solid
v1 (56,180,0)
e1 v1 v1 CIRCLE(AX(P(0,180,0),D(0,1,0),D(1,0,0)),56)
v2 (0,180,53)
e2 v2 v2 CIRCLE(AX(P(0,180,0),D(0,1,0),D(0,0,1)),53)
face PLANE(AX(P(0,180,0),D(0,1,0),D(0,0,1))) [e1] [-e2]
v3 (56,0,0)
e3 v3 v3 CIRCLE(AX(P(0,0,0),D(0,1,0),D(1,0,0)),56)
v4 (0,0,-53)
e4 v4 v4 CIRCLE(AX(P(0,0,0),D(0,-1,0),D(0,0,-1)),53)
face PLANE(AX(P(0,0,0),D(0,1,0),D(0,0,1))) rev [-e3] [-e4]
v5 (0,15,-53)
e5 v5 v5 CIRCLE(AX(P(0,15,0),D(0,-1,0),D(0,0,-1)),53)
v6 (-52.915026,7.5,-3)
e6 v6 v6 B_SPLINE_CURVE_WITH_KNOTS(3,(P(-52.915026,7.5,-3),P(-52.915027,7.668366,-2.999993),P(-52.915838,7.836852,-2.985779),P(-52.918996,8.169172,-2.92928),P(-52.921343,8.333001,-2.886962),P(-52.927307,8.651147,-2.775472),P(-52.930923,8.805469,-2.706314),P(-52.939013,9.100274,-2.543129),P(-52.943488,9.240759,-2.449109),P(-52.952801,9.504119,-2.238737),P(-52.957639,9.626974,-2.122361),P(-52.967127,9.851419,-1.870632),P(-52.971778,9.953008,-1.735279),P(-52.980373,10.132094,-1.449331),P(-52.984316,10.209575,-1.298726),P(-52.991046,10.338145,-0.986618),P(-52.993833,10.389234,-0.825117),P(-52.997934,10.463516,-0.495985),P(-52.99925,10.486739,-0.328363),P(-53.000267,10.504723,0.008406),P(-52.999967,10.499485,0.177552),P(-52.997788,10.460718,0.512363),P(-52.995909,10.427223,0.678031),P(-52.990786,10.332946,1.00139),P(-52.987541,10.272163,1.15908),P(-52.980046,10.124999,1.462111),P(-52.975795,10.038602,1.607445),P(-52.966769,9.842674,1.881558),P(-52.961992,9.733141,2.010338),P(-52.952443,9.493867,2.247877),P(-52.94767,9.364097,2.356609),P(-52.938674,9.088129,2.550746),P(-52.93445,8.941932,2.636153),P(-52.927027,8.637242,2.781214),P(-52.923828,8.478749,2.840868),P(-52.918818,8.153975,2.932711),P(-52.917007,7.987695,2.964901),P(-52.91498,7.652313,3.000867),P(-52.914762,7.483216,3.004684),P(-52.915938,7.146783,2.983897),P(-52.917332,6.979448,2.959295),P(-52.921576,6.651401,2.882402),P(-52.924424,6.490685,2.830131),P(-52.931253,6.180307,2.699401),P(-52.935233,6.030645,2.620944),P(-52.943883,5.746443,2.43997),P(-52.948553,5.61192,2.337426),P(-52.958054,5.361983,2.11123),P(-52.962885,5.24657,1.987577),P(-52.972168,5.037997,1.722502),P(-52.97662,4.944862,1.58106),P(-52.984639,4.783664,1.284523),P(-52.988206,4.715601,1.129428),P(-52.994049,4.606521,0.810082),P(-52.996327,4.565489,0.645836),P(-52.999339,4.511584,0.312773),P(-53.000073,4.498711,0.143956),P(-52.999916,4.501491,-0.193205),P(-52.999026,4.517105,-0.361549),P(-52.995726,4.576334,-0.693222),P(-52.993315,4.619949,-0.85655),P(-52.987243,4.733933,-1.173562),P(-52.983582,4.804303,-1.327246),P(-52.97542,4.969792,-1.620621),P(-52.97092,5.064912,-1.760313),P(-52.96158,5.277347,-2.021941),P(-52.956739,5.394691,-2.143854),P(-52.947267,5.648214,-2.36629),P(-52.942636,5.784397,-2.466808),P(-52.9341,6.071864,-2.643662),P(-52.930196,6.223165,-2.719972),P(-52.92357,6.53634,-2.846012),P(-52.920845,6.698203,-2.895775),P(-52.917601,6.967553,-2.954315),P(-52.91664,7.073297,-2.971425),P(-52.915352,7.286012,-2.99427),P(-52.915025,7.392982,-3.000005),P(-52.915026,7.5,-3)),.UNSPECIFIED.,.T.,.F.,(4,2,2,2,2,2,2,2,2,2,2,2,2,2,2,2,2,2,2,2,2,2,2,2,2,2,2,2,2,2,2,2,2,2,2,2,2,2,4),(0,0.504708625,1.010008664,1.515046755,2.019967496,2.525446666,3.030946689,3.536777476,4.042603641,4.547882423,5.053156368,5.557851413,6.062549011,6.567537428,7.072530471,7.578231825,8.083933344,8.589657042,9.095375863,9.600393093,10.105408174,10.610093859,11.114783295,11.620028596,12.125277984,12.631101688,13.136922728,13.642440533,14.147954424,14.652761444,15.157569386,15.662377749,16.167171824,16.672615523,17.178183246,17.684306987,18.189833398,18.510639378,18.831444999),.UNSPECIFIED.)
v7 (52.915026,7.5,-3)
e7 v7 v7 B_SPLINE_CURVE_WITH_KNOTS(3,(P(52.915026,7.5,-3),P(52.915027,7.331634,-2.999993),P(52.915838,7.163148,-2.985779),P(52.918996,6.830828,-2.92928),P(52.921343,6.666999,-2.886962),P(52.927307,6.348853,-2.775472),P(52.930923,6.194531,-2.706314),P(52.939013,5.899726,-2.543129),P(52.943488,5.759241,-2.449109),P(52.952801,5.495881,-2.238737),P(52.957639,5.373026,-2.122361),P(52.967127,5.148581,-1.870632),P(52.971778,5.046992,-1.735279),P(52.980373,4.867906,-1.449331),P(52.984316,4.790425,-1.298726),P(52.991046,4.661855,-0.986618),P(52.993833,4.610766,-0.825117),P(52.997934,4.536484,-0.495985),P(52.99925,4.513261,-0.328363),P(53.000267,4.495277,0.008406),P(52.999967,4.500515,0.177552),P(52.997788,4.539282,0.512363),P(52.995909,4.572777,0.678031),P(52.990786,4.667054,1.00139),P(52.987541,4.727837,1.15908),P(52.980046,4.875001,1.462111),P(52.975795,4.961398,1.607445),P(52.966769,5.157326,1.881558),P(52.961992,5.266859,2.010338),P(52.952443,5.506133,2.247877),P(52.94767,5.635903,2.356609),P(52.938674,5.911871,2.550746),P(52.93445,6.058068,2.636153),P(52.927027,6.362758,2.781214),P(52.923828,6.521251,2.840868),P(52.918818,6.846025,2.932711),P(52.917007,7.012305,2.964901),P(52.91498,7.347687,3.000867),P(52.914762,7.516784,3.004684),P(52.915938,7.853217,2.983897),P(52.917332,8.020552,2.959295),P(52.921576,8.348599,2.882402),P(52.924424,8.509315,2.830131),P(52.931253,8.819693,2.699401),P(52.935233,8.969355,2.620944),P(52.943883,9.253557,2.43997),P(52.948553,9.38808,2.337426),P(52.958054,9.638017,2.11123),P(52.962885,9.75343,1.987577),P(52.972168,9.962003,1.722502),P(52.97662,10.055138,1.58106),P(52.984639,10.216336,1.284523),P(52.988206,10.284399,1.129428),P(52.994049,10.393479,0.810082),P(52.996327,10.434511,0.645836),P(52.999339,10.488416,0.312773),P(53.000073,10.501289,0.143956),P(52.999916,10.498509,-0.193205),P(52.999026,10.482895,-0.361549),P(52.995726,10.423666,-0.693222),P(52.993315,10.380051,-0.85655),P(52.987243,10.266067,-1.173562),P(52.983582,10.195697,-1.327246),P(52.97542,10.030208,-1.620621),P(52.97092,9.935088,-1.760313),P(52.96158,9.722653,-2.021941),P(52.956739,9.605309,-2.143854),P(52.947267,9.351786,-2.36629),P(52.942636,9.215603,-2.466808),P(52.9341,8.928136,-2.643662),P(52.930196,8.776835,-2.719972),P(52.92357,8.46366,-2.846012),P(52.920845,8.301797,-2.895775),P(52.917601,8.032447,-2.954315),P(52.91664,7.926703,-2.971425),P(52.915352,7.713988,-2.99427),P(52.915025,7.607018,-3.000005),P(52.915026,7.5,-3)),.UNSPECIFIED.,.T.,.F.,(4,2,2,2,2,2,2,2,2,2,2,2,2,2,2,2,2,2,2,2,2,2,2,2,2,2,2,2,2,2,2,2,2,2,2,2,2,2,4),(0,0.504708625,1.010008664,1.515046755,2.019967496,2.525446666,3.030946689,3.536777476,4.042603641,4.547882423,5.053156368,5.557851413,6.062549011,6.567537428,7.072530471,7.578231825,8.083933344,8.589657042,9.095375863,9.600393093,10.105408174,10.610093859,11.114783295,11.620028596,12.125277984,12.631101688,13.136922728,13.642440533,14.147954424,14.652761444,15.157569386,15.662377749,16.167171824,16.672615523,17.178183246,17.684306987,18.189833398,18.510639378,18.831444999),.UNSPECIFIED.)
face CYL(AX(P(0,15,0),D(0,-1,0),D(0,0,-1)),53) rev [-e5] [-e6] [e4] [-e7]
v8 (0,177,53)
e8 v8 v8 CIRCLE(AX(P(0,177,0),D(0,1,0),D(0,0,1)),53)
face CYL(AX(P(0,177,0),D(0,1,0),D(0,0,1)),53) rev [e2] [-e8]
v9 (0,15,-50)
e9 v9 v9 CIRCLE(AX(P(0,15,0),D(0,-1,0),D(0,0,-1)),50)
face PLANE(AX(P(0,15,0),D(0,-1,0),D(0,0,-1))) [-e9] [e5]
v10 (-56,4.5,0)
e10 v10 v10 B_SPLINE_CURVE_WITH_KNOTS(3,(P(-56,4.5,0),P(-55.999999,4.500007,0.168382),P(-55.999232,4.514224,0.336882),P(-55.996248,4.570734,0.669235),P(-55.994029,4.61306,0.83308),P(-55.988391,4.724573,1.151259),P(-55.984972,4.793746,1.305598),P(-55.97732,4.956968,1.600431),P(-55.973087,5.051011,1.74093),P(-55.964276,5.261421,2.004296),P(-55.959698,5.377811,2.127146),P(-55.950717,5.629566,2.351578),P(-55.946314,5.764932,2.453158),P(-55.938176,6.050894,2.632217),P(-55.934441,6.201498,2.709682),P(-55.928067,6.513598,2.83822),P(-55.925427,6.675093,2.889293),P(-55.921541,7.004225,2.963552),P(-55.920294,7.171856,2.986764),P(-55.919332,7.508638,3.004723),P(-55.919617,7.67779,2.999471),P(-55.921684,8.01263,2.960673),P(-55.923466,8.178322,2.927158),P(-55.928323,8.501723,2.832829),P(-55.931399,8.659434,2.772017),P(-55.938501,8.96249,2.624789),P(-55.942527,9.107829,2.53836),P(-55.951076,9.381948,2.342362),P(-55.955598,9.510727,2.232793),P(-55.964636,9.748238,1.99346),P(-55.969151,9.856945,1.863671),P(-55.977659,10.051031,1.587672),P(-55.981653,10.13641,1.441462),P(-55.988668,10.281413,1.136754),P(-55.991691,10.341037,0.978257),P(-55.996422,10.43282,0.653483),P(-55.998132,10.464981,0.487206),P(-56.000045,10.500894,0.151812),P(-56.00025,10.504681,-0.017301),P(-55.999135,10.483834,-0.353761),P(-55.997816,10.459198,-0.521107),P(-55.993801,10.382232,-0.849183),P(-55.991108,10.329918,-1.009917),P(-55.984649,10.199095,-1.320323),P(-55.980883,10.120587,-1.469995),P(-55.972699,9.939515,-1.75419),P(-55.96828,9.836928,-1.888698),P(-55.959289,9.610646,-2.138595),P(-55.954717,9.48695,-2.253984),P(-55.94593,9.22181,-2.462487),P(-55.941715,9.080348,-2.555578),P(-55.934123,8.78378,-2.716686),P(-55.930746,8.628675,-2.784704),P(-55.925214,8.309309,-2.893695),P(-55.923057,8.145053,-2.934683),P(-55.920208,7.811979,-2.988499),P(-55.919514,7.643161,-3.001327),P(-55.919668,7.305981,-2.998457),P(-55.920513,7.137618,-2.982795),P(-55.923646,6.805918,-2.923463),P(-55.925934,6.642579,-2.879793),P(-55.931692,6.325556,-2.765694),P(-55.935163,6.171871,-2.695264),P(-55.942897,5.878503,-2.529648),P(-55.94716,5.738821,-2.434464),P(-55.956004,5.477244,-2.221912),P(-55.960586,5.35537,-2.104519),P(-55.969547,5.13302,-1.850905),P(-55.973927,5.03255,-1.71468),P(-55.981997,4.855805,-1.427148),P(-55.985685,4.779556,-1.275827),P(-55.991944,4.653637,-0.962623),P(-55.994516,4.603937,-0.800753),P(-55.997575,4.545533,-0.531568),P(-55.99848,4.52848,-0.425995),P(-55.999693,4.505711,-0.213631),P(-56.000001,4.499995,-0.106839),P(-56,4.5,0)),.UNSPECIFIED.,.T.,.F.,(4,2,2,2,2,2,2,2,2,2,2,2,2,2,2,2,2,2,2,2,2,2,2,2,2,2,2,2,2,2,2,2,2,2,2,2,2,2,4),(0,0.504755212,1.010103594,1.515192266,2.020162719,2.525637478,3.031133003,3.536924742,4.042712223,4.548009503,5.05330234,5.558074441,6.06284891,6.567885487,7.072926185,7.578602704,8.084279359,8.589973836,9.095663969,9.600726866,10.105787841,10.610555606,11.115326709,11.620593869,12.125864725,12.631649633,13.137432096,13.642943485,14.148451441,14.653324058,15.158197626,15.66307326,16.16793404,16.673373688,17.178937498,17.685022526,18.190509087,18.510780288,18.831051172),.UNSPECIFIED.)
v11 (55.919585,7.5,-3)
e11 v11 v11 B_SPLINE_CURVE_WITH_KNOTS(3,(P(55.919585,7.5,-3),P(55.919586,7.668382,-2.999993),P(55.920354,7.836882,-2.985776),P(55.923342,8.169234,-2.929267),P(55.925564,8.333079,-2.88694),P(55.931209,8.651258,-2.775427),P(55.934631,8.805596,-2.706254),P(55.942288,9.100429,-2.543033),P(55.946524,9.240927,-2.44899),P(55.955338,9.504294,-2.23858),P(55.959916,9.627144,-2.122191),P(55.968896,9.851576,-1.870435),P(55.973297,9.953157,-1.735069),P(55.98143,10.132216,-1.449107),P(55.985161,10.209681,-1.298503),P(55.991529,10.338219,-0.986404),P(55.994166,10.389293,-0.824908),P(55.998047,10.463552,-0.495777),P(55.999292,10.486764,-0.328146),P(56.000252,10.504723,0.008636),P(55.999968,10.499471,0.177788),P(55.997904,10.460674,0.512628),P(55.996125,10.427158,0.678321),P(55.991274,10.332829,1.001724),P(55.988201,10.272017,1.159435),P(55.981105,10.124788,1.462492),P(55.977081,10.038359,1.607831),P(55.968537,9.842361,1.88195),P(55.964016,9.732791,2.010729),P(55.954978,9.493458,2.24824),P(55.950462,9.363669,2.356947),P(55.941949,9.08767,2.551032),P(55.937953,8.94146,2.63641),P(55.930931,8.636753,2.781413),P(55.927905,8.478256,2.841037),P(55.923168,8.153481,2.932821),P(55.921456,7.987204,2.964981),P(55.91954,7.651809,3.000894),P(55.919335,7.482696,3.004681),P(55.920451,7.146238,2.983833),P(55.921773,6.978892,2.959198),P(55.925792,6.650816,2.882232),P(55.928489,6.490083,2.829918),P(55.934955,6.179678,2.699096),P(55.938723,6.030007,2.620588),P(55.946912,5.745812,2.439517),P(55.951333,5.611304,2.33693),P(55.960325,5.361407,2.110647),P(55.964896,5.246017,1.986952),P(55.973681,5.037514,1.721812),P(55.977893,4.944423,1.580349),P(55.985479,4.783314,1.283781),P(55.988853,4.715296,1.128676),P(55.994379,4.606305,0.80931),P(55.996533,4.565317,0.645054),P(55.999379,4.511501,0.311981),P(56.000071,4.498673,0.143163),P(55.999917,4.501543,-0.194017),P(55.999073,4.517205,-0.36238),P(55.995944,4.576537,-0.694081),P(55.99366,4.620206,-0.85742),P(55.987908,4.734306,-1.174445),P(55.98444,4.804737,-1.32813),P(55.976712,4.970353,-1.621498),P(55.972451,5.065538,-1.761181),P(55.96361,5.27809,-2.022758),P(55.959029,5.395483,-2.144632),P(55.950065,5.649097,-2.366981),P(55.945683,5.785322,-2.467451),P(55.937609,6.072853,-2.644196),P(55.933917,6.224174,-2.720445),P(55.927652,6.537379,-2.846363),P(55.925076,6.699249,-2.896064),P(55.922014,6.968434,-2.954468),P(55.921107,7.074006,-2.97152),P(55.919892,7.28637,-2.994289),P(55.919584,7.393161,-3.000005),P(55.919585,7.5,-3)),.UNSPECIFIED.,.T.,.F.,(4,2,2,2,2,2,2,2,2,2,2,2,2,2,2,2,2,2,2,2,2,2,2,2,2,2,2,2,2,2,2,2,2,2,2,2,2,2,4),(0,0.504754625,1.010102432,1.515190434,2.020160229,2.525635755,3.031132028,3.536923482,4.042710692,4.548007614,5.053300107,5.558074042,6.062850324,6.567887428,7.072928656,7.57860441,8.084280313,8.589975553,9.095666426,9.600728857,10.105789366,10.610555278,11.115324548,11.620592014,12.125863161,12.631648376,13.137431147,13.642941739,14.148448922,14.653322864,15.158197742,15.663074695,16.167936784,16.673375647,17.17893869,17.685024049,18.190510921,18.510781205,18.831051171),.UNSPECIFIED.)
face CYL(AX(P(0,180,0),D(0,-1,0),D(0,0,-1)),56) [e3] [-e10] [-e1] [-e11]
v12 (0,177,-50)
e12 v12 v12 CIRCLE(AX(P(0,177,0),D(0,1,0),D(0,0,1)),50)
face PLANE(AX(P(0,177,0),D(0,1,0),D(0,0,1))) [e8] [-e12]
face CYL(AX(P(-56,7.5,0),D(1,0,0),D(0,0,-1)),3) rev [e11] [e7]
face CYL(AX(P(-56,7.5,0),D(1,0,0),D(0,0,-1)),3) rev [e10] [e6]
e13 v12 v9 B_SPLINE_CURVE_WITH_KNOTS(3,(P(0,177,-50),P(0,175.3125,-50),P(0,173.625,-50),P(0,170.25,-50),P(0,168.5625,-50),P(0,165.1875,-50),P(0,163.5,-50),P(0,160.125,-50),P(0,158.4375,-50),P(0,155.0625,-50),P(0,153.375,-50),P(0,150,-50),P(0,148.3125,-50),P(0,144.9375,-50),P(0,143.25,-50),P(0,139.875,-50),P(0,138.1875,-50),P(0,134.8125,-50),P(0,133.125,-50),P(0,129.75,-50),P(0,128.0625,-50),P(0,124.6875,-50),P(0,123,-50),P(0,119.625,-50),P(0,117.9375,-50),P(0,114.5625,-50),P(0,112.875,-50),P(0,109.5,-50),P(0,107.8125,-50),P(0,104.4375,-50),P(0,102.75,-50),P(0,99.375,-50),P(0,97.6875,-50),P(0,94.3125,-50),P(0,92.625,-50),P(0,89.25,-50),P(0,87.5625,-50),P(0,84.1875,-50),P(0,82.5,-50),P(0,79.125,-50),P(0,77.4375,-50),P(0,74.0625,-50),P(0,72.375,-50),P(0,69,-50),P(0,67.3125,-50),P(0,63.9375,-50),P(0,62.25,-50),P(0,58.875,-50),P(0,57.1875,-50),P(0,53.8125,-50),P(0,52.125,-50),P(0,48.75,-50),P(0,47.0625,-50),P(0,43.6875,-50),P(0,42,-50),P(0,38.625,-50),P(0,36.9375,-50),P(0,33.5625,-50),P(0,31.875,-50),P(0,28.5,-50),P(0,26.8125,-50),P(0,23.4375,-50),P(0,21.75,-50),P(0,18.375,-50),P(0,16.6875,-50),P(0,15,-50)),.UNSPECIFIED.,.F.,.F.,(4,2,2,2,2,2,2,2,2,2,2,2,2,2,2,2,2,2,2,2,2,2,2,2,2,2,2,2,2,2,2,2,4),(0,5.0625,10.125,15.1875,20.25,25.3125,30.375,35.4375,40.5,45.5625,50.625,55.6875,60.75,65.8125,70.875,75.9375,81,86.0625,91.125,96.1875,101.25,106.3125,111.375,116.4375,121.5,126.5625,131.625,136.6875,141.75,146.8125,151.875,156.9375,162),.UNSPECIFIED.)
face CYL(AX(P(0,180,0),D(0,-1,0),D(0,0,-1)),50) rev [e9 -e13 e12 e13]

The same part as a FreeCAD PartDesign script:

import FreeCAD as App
import Part
import Sketcher
from FreeCAD import Vector
Q = App.Units.Quantity

doc = App.newDocument("Part")
params = doc.addObject("Spreadsheet::Sheet", "Params")
for row, (alias, value) in enumerate([
    ("sketch1_diameter", "112 mm"),
    ("sketch1_diameter2", "100 mm"),
    ("pad1_length", "180 mm"),
    ("sketch2_diameter", "106 mm"),
    ("pocket1_length", "3 mm"),
    ("sketch3_diameter", "106 mm"),
    ("pocket2_length", "15 mm"),
    ("sketch4_diameter", "6 mm"),
], start=1):
    params.set(f"A{row}", alias)
    params.set(f"B{row}", "=" + value)
    params.setAlias(f"B{row}", alias)

body = doc.addObject("PartDesign::Body", "Body")

# Sketch on XZ plane
sketch1 = doc.addObject("Sketcher::SketchObject", "Sketch")
body.addObject(sketch1)
sketch1.AttachmentSupport = (doc.XZ_Plane, [""])
sketch1.MapMode = "FlatFace"
sketch1.addGeometry(Part.Circle(Vector(0, 0, 0), Vector(0, 0, 1), 56), False)
sketch1.addGeometry(Part.Circle(Vector(0, 0, 0), Vector(0, 0, 1), 50), False)
sketch1.addConstraint(Sketcher.Constraint("Coincident", 0, 3, -1, 1))
sketch1.addConstraint(Sketcher.Constraint("Coincident", 1, 3, -1, 1))
sketch1.addConstraint(Sketcher.Constraint("Diameter", 0, Q("112 mm")))
sketch1.addConstraint(Sketcher.Constraint("Diameter", 1, Q("100 mm")))
sketch1.setExpression("Constraints[2]", "Params.sketch1_diameter")
sketch1.setExpression("Constraints[3]", "Params.sketch1_diameter2")
pad1 = doc.addObject("PartDesign::Pad", "Pad")
body.addObject(pad1)
pad1.Profile = sketch1
pad1.setExpression("Length", "Params.pad1_length")
pad1.Reversed = True

# Sketch on XZ plane
sketch2 = doc.addObject("Sketcher::SketchObject", "Sketch001")
body.addObject(sketch2)
sketch2.AttachmentSupport = (doc.XZ_Plane, [""])
sketch2.MapMode = "FlatFace"
sketch2.AttachmentOffset = App.Placement(Vector(0, 0, -180), App.Rotation())
sketch2.addGeometry(Part.Circle(Vector(0, 0, 0), Vector(0, 0, 1), 53), False)
sketch2.addConstraint(Sketcher.Constraint("Coincident", 0, 3, -1, 1))
sketch2.addConstraint(Sketcher.Constraint("Diameter", 0, Q("106 mm")))
sketch2.setExpression("Constraints[1]", "Params.sketch2_diameter")
pocket1 = doc.addObject("PartDesign::Pocket", "Pocket")
body.addObject(pocket1)
pocket1.Profile = sketch2
pocket1.setExpression("Length", "Params.pocket1_length")
pocket1.Reversed = True

# Sketch on XZ plane
sketch3 = doc.addObject("Sketcher::SketchObject", "Sketch002")
body.addObject(sketch3)
sketch3.AttachmentSupport = (doc.XZ_Plane, [""])
sketch3.MapMode = "FlatFace"
sketch3.AttachmentOffset = App.Placement(Vector(0, 0, -15), App.Rotation())
sketch3.addGeometry(Part.Circle(Vector(0, 0, 0), Vector(0, 0, 1), 53), False)
sketch3.addConstraint(Sketcher.Constraint("Coincident", 0, 3, -1, 1))
sketch3.addConstraint(Sketcher.Constraint("Diameter", 0, Q("106 mm")))
sketch3.setExpression("Constraints[1]", "Params.sketch3_diameter")
pocket2 = doc.addObject("PartDesign::Pocket", "Pocket001")
body.addObject(pocket2)
pocket2.Profile = sketch3
pocket2.setExpression("Length", "Params.pocket2_length")
pocket2.Reversed = True

# Sketch on YZ plane
sketch4 = doc.addObject("Sketcher::SketchObject", "Sketch003")
body.addObject(sketch4)
sketch4.AttachmentSupport = (doc.YZ_Plane, [""])
sketch4.MapMode = "FlatFace"
sketch4.AttachmentOffset = App.Placement(Vector(0, 0, 53), App.Rotation())
sketch4.addGeometry(Part.Circle(Vector(7.5, 0, 0), Vector(0, 0, 1), 3), False)
sketch4.addConstraint(Sketcher.Constraint("PointOnObject", 0, 3, -1))
sketch4.addConstraint(Sketcher.Constraint("Diameter", 0, Q("6 mm")))
sketch4.addConstraint(Sketcher.Constraint("DistanceX", -1, 1, 0, 3, Q("7.5 mm")))
sketch4.setExpression("Constraints[1]", "Params.sketch4_diameter")
pocket3 = doc.addObject("PartDesign::Pocket", "Pocket002")
body.addObject(pocket3)
pocket3.Profile = sketch4
pocket3.Type = "ThroughAll"
pocket3.Midplane = True

doc.recompute()
